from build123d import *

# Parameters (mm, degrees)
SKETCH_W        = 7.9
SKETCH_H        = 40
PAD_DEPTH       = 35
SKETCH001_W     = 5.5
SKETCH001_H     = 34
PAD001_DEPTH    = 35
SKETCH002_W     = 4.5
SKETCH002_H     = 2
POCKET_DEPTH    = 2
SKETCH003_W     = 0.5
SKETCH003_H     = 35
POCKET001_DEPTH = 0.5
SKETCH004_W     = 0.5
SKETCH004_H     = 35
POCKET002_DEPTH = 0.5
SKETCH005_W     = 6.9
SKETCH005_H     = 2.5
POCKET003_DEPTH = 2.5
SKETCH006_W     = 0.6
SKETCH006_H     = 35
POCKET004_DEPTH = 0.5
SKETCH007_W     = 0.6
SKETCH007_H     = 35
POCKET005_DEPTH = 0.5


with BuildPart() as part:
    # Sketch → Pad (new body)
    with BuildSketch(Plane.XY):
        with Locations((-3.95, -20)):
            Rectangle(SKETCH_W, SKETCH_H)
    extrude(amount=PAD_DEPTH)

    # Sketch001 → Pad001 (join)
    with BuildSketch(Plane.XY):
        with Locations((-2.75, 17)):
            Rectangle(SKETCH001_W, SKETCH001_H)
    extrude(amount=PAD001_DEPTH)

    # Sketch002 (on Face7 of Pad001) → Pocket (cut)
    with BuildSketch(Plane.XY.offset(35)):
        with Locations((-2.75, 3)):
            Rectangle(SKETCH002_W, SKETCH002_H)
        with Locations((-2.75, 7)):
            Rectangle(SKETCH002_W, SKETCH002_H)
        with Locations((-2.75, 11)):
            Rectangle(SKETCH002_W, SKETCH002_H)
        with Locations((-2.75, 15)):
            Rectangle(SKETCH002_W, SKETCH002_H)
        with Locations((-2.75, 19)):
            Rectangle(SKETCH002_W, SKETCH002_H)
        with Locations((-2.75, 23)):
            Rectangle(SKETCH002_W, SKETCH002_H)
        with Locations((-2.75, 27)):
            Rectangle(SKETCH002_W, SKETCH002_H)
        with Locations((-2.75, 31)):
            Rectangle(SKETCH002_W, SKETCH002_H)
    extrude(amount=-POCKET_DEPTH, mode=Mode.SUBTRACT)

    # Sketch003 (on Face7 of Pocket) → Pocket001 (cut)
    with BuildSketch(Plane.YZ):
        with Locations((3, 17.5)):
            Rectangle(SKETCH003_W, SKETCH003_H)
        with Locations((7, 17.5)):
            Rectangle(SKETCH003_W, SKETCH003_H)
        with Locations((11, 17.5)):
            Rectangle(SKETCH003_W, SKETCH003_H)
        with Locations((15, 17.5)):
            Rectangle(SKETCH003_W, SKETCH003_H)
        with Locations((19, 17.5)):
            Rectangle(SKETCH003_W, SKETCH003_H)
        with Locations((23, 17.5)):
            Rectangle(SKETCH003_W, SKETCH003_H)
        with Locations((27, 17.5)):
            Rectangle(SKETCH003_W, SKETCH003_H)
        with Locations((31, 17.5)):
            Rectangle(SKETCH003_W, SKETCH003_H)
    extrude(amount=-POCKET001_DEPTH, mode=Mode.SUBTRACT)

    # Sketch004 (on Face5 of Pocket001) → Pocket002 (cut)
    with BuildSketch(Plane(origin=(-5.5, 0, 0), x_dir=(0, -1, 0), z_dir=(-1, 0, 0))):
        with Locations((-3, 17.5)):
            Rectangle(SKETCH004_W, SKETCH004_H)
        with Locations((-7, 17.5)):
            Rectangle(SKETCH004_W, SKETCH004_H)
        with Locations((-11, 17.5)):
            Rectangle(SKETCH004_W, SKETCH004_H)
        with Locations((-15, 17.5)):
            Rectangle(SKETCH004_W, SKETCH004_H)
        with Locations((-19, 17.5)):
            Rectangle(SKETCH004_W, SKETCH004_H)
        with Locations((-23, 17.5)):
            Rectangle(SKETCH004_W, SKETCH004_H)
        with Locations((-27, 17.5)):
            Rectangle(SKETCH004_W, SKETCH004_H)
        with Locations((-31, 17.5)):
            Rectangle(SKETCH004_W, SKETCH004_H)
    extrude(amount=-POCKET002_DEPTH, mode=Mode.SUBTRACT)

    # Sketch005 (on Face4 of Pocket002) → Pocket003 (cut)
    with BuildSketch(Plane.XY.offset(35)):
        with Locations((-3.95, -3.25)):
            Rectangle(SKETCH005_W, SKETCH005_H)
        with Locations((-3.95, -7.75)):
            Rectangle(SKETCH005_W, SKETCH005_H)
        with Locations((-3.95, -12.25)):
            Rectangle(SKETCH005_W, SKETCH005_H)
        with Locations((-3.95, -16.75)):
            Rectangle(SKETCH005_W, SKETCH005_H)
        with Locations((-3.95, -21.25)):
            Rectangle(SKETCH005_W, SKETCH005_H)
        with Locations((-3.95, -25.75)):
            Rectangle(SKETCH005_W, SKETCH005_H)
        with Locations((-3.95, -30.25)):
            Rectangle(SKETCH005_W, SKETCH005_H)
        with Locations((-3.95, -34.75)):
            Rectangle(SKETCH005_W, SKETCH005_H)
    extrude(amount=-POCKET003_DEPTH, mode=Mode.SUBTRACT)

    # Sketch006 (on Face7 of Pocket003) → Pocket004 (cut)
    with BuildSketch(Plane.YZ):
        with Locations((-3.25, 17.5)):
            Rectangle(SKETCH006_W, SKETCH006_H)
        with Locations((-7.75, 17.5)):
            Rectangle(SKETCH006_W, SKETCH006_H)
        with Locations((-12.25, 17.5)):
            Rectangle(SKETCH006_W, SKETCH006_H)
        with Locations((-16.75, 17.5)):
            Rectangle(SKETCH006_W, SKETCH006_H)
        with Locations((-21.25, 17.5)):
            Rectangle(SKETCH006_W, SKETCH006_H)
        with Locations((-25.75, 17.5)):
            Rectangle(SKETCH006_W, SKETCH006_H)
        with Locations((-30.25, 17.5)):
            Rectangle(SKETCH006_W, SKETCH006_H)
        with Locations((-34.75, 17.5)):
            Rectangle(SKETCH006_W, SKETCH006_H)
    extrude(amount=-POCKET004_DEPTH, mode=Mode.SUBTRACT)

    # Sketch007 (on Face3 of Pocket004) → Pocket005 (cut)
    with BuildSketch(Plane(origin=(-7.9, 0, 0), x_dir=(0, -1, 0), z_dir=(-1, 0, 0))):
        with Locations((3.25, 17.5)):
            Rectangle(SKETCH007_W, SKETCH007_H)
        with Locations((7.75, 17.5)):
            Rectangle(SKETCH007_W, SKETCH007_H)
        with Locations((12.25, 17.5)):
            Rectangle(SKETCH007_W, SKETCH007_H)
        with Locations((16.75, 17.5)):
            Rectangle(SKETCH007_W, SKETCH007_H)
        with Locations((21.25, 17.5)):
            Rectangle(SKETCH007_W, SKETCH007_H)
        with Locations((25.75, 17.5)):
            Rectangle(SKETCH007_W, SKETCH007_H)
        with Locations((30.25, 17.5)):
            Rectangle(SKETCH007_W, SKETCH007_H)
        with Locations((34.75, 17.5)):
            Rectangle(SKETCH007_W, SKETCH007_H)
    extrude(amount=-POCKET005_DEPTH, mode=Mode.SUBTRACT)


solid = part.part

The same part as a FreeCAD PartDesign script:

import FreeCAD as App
import Part
import Sketcher
from FreeCAD import Vector


def add_polygon(sketch, points):
    """Adds a closed chain of lines whose ends are joined by coincident constraints."""
    first, n = sketch.GeometryCount, len(points)
    for a, b in zip(points, points[1:] + points[:1]):
        sketch.addGeometry(Part.LineSegment(App.Vector(*a, 0), App.Vector(*b, 0)), False)
    for i in range(n):
        sketch.addConstraint(Sketcher.Constraint("Coincident", first + i, 2, first + (i + 1) % n, 1))

doc = App.newDocument("Part")
body = doc.addObject("PartDesign::Body", "Body")

# Sketch on XY plane
sketch1 = body.newObject("Sketcher::SketchObject", "Sketch")
sketch1.AttachmentSupport = (doc.getObject("XY_Plane"), [""])
sketch1.MapMode = "FlatFace"
add_polygon(sketch1, [(-8, 0), (-8, -40), (0, -40), (0, 0)])  # lines 0-3
sketch1.addConstraint([
    Sketcher.Constraint("Vertical", 0),
    Sketcher.Constraint("Horizontal", 1),
    Sketcher.Constraint("Vertical", 2),
    Sketcher.Constraint("Horizontal", 3),
    Sketcher.Constraint("Coincident", 2, 2, -1, 1),
    Sketcher.Constraint("DistanceY", 0, 2, 0, 1, 40.0),
    Sketcher.Constraint("DistanceX", 1, 1, 1, 2, 7.9),
])
pad1 = body.newObject("PartDesign::Pad", "Pad")
pad1.Profile = sketch1
pad1.Length = 35

# Sketch on XY plane
sketch2 = body.newObject("Sketcher::SketchObject", "Sketch001")
sketch2.AttachmentSupport = (doc.getObject("XY_Plane"), [""])
sketch2.MapMode = "FlatFace"
add_polygon(sketch2, [(-6, 34), (-6, 0), (0, 0), (0, 34)])  # lines 0-3
sketch2.addConstraint([
    Sketcher.Constraint("Vertical", 0),
    Sketcher.Constraint("Horizontal", 1),
    Sketcher.Constraint("Vertical", 2),
    Sketcher.Constraint("Horizontal", 3),
    Sketcher.Constraint("Coincident", 1, 2, -1, 1),
    Sketcher.Constraint("DistanceY", 0, 2, 0, 1, 34.0),
    Sketcher.Constraint("DistanceX", 1, 1, 1, 2, 5.5),
])
pad2 = body.newObject("PartDesign::Pad", "Pad001")
pad2.Profile = sketch2
pad2.Length = 35

# Sketch on XY plane
sketch3 = body.newObject("Sketcher::SketchObject", "Sketch002")
sketch3.AttachmentSupport = (doc.getObject("XY_Plane"), [""])
sketch3.MapMode = "FlatFace"
sketch3.AttachmentOffset = App.Placement(Vector(0, 0, 35), App.Rotation())
add_polygon(sketch3, [(-5, 4), (-5, 2), (-0.5, 2), (-0.5, 4)])  # lines 0-3
add_polygon(sketch3, [(-5, 8), (-5, 6), (-0.5, 6), (-0.5, 8)])  # lines 4-7
add_polygon(sketch3, [(-5, 12), (-5, 10), (-0.5, 10), (-0.5, 12)])  # lines 8-11
add_polygon(sketch3, [(-5, 16), (-5, 14), (-0.5, 14), (-0.5, 16)])  # lines 12-15
add_polygon(sketch3, [(-5, 20), (-5, 18), (-0.5, 18), (-0.5, 20)])  # lines 16-19
add_polygon(sketch3, [(-5, 24), (-5, 22), (-0.5, 22), (-0.5, 24)])  # lines 20-23
add_polygon(sketch3, [(-5, 28), (-5, 26), (-0.5, 26), (-0.5, 28)])  # lines 24-27
add_polygon(sketch3, [(-5, 32), (-5, 30), (-0.5, 30), (-0.5, 32)])  # lines 28-31
sketch3.addConstraint([
    Sketcher.Constraint("Vertical", 0),
    Sketcher.Constraint("Horizontal", 1),
    Sketcher.Constraint("Vertical", 2),
    Sketcher.Constraint("Horizontal", 3),
    Sketcher.Constraint("Vertical", 4),
    Sketcher.Constraint("Horizontal", 5),
    Sketcher.Constraint("Vertical", 6),
    Sketcher.Constraint("Horizontal", 7),
    Sketcher.Constraint("Vertical", 8),
    Sketcher.Constraint("Horizontal", 9),
    Sketcher.Constraint("Vertical", 10),
    Sketcher.Constraint("Horizontal", 11),
    Sketcher.Constraint("Vertical", 12),
    Sketcher.Constraint("Horizontal", 13),
    Sketcher.Constraint("Vertical", 14),
    Sketcher.Constraint("Horizontal", 15),
    Sketcher.Constraint("Vertical", 16),
    Sketcher.Constraint("Horizontal", 17),
    Sketcher.Constraint("Vertical", 18),
    Sketcher.Constraint("Horizontal", 19),
    Sketcher.Constraint("Vertical", 20),
    Sketcher.Constraint("Horizontal", 21),
    Sketcher.Constraint("Vertical", 22),
    Sketcher.Constraint("Horizontal", 23),
    Sketcher.Constraint("Vertical", 24),
    Sketcher.Constraint("Horizontal", 25),
    Sketcher.Constraint("Vertical", 26),
    Sketcher.Constraint("Horizontal", 27),
    Sketcher.Constraint("Vertical", 28),
    Sketcher.Constraint("Horizontal", 29),
    Sketcher.Constraint("Vertical", 30),
    Sketcher.Constraint("Horizontal", 31),
    Sketcher.Constraint("Vertical", 3, 2, 4, 2),
    Sketcher.Constraint("Vertical", 2, 2, 5, 2),
    Sketcher.Constraint("Vertical", 7, 2, 8, 2),
    Sketcher.Constraint("Vertical", 6, 2, 9, 2),
    Sketcher.Constraint("Vertical", 11, 2, 12, 2),
    Sketcher.Constraint("Vertical", 10, 2, 13, 2),
    Sketcher.Constraint("Vertical", 15, 2, 16, 2),
    Sketcher.Constraint("Vertical", 14, 2, 17, 2),
    Sketcher.Constraint("Vertical", 19, 2, 20, 2),
    Sketcher.Constraint("Vertical", 18, 2, 21, 2),
    Sketcher.Constraint("Vertical", 23, 2, 24, 2),
    Sketcher.Constraint("Vertical", 22, 2, 25, 2),
    Sketcher.Constraint("Vertical", 27, 2, 28, 2),
    Sketcher.Constraint("Vertical", 26, 2, 29, 2),
    Sketcher.Constraint("Equal", 2, 4),
    Sketcher.Constraint("Equal", 6, 8),
    Sketcher.Constraint("Equal", 10, 12),
    Sketcher.Constraint("Equal", 14, 16),
    Sketcher.Constraint("Equal", 18, 20),
    Sketcher.Constraint("Equal", 22, 24),
    Sketcher.Constraint("Equal", 26, 28),
    Sketcher.Constraint("DistanceY", 0, 2, 0, 1, 2.0),
    Sketcher.Constraint("DistanceX", 1, 1, 1, 2, 4.5),
    Sketcher.Constraint("DistanceX", 0, 2, -1, 1, 5.0),
    Sketcher.Constraint("DistanceY", -1, 1, 0, 2, 2.0),
    Sketcher.Constraint("DistanceY", -1, 1, 4, 2, 6.0),
    Sketcher.Constraint("DistanceY", -1, 1, 8, 2, 10.0),
    Sketcher.Constraint("DistanceY", -1, 1, 12, 2, 14.0),
    Sketcher.Constraint("DistanceY", -1, 1, 16, 2, 18.0),
    Sketcher.Constraint("DistanceY", -1, 1, 20, 2, 22.0),
    Sketcher.Constraint("DistanceY", -1, 1, 24, 2, 26.0),
    Sketcher.Constraint("DistanceY", -1, 1, 28, 2, 30.0),
])
pocket1 = body.newObject("PartDesign::Pocket", "Pocket")
pocket1.Profile = sketch3
pocket1.Length = 2

# Sketch on YZ plane
sketch4 = body.newObject("Sketcher::SketchObject", "Sketch003")
sketch4.AttachmentSupport = (doc.getObject("YZ_Plane"), [""])
sketch4.MapMode = "FlatFace"
add_polygon(sketch4, [(2.8, 35), (2.8, 0), (3.2, 0), (3.2, 35)])  # lines 0-3
add_polygon(sketch4, [(6.8, 35), (6.8, 0), (7.2, 0), (7.2, 35)])  # lines 4-7
add_polygon(sketch4, [(10.8, 35), (10.8, 0), (11.2, 0), (11.2, 35)])  # lines 8-11
add_polygon(sketch4, [(14.8, 35), (14.8, 0), (15.2, 0), (15.2, 35)])  # lines 12-15
add_polygon(sketch4, [(18.8, 35), (18.8, 0), (19.2, 0), (19.2, 35)])  # lines 16-19
add_polygon(sketch4, [(22.8, 35), (22.8, 0), (23.2, 0), (23.2, 35)])  # lines 20-23
add_polygon(sketch4, [(26.8, 35), (26.8, 0), (27.2, 0), (27.2, 35)])  # lines 24-27
add_polygon(sketch4, [(30.8, 35), (30.8, 0), (31.2, 0), (31.2, 35)])  # lines 28-31
sketch4.addConstraint([
    Sketcher.Constraint("Vertical", 0),
    Sketcher.Constraint("Horizontal", 1),
    Sketcher.Constraint("Vertical", 2),
    Sketcher.Constraint("Horizontal", 3),
    Sketcher.Constraint("Vertical", 4),
    Sketcher.Constraint("Horizontal", 5),
    Sketcher.Constraint("Vertical", 6),
    Sketcher.Constraint("Horizontal", 7),
    Sketcher.Constraint("Vertical", 8),
    Sketcher.Constraint("Horizontal", 9),
    Sketcher.Constraint("Vertical", 10),
    Sketcher.Constraint("Horizontal", 11),
    Sketcher.Constraint("Vertical", 12),
    Sketcher.Constraint("Horizontal", 13),
    Sketcher.Constraint("Vertical", 14),
    Sketcher.Constraint("Horizontal", 15),
    Sketcher.Constraint("Vertical", 16),
    Sketcher.Constraint("Horizontal", 17),
    Sketcher.Constraint("Vertical", 18),
    Sketcher.Constraint("Horizontal", 19),
    Sketcher.Constraint("Vertical", 20),
    Sketcher.Constraint("Horizontal", 21),
    Sketcher.Constraint("Vertical", 22),
    Sketcher.Constraint("Horizontal", 23),
    Sketcher.Constraint("Vertical", 24),
    Sketcher.Constraint("Horizontal", 25),
    Sketcher.Constraint("Vertical", 26),
    Sketcher.Constraint("Horizontal", 27),
    Sketcher.Constraint("Vertical", 28),
    Sketcher.Constraint("Horizontal", 29),
    Sketcher.Constraint("Vertical", 30),
    Sketcher.Constraint("Horizontal", 31),
    Sketcher.Constraint("PointOnObject", 0, 2, -1),
    Sketcher.Constraint("PointOnObject", 4, 2, -1),
    Sketcher.Constraint("PointOnObject", 8, 2, -1),
    Sketcher.Constraint("PointOnObject", 12, 2, -1),
    Sketcher.Constraint("PointOnObject", 16, 2, -1),
    Sketcher.Constraint("PointOnObject", 20, 2, -1),
    Sketcher.Constraint("PointOnObject", 24, 2, -1),
    Sketcher.Constraint("PointOnObject", 28, 2, -1),
    Sketcher.Constraint("Horizontal", 3, 2, 6, 2),
    Sketcher.Constraint("Horizontal", 7, 2, 10, 2),
    Sketcher.Constraint("Horizontal", 11, 2, 14, 2),
    Sketcher.Constraint("Horizontal", 15, 2, 18, 2),
    Sketcher.Constraint("Horizontal", 19, 2, 22, 2),
    Sketcher.Constraint("Horizontal", 23, 2, 26, 2),
    Sketcher.Constraint("Horizontal", 27, 2, 30, 2),
    Sketcher.Constraint("Equal", 3, 5),
    Sketcher.Constraint("Equal", 7, 9),
    Sketcher.Constraint("Equal", 11, 13),
    Sketcher.Constraint("Equal", 15, 17),
    Sketcher.Constraint("Equal", 19, 21),
    Sketcher.Constraint("Equal", 23, 25),
    Sketcher.Constraint("Equal", 27, 29),
    Sketcher.Constraint("DistanceY", 0, 2, 0, 1, 35.0),
    Sketcher.Constraint("DistanceX", 1, 1, 1, 2, 0.5),
    Sketcher.Constraint("DistanceX", 0, 2, 4, 2, 4.0),
    Sketcher.Constraint("DistanceX", 4, 2, 8, 2, 4.0),
    Sketcher.Constraint("DistanceX", 8, 2, 12, 2, 4.0),
    Sketcher.Constraint("DistanceX", 12, 2, 16, 2, 4.0),
    Sketcher.Constraint("DistanceX", 16, 2, 20, 2, 4.0),
    Sketcher.Constraint("DistanceX", 20, 2, 24, 2, 4.0),
    Sketcher.Constraint("DistanceX", 24, 2, 28, 2, 4.0),
    Sketcher.Constraint("DistanceX", -1, 1, 0, 2, 2.75),
])
pocket2 = body.newObject("PartDesign::Pocket", "Pocket001")
pocket2.Profile = sketch4
pocket2.Length = 0.5

# Sketch on YZ plane
sketch5 = body.newObject("Sketcher::SketchObject", "Sketch004")
sketch5.AttachmentSupport = (doc.getObject("YZ_Plane"), [""])
sketch5.MapMode = "FlatFace"
sketch5.AttachmentOffset = App.Placement(Vector(0, 0, -5.5), App.Rotation())
add_polygon(sketch5, [(3.2, 35), (3.2, 0), (2.8, 0), (2.8, 35)])  # lines 0-3
add_polygon(sketch5, [(7.2, 35), (7.2, 0), (6.8, 0), (6.8, 35)])  # lines 4-7
add_polygon(sketch5, [(11.2, 35), (11.2, 0), (10.8, 0), (10.8, 35)])  # lines 8-11
add_polygon(sketch5, [(15.2, 35), (15.2, 0), (14.8, 0), (14.8, 35)])  # lines 12-15
add_polygon(sketch5, [(19.2, 35), (19.2, 0), (18.8, 0), (18.8, 35)])  # lines 16-19
add_polygon(sketch5, [(23.2, 35), (23.2, 0), (22.8, 0), (22.8, 35)])  # lines 20-23
add_polygon(sketch5, [(27.2, 35), (27.2, 0), (26.8, 0), (26.8, 35)])  # lines 24-27
add_polygon(sketch5, [(31.2, 35), (31.2, 0), (30.8, 0), (30.8, 35)])  # lines 28-31
sketch5.addConstraint([
    Sketcher.Constraint("Vertical", 0),
    Sketcher.Constraint("Horizontal", 1),
    Sketcher.Constraint("Vertical", 2),
    Sketcher.Constraint("Horizontal", 3),
    Sketcher.Constraint("Vertical", 4),
    Sketcher.Constraint("Horizontal", 5),
    Sketcher.Constraint("Vertical", 6),
    Sketcher.Constraint("Horizontal", 7),
    Sketcher.Constraint("Vertical", 8),
    Sketcher.Constraint("Horizontal", 9),
    Sketcher.Constraint("Vertical", 10),
    Sketcher.Constraint("Horizontal", 11),
    Sketcher.Constraint("Vertical", 12),
    Sketcher.Constraint("Horizontal", 13),
    Sketcher.Constraint("Vertical", 14),
    Sketcher.Constraint("Horizontal", 15),
    Sketcher.Constraint("Vertical", 16),
    Sketcher.Constraint("Horizontal", 17),
    Sketcher.Constraint("Vertical", 18),
    Sketcher.Constraint("Horizontal", 19),
    Sketcher.Constraint("Vertical", 20),
    Sketcher.Constraint("Horizontal", 21),
    Sketcher.Constraint("Vertical", 22),
    Sketcher.Constraint("Horizontal", 23),
    Sketcher.Constraint("Vertical", 24),
    Sketcher.Constraint("Horizontal", 25),
    Sketcher.Constraint("Vertical", 26),
    Sketcher.Constraint("Horizontal", 27),
    Sketcher.Constraint("Vertical", 28),
    Sketcher.Constraint("Horizontal", 29),
    Sketcher.Constraint("Vertical", 30),
    Sketcher.Constraint("Horizontal", 31),
    Sketcher.Constraint("PointOnObject", 0, 2, -1),
    Sketcher.Constraint("PointOnObject", 4, 2, -1),
    Sketcher.Constraint("PointOnObject", 8, 2, -1),
    Sketcher.Constraint("PointOnObject", 12, 2, -1),
    Sketcher.Constraint("PointOnObject", 16, 2, -1),
    Sketcher.Constraint("PointOnObject", 20, 2, -1),
    Sketcher.Constraint("PointOnObject", 24, 2, -1),
    Sketcher.Constraint("PointOnObject", 28, 2, -1),
    Sketcher.Constraint("Horizontal", 3, 2, 6, 2),
    Sketcher.Constraint("Horizontal", 7, 2, 10, 2),
    Sketcher.Constraint("Horizontal", 11, 2, 14, 2),
    Sketcher.Constraint("Horizontal", 15, 2, 18, 2),
    Sketcher.Constraint("Horizontal", 19, 2, 22, 2),
    Sketcher.Constraint("Horizontal", 23, 2, 26, 2),
    Sketcher.Constraint("Horizontal", 27, 2, 30, 2),
    Sketcher.Constraint("Equal", 3, 5),
    Sketcher.Constraint("Equal", 7, 9),
    Sketcher.Constraint("Equal", 11, 13),
    Sketcher.Constraint("Equal", 15, 17),
    Sketcher.Constraint("Equal", 19, 21),
    Sketcher.Constraint("Equal", 23, 25),
    Sketcher.Constraint("Equal", 27, 29),
    Sketcher.Constraint("DistanceY", 0, 2, 0, 1, 35.0),
    Sketcher.Constraint("DistanceX", 1, 2, 1, 1, 0.5),
    Sketcher.Constraint("DistanceX", 0, 2, 4, 2, 4.0),
    Sketcher.Constraint("DistanceX", 4, 2, 8, 2, 4.0),
    Sketcher.Constraint("DistanceX", 8, 2, 12, 2, 4.0),
    Sketcher.Constraint("DistanceX", 12, 2, 16, 2, 4.0),
    Sketcher.Constraint("DistanceX", 16, 2, 20, 2, 4.0),
    Sketcher.Constraint("DistanceX", 20, 2, 24, 2, 4.0),
    Sketcher.Constraint("DistanceX", 24, 2, 28, 2, 4.0),
    Sketcher.Constraint("DistanceX", -1, 1, 0, 2, 3.25),
])
pocket3 = body.newObject("PartDesign::Pocket", "Pocket002")
pocket3.Profile = sketch5
pocket3.Length = 0.5
pocket3.Reversed = True

# Sketch on XY plane
sketch6 = body.newObject("Sketcher::SketchObject", "Sketch005")
sketch6.AttachmentSupport = (doc.getObject("XY_Plane"), [""])
sketch6.MapMode = "FlatFace"
sketch6.AttachmentOffset = App.Placement(Vector(0, 0, 35), App.Rotation())
add_polygon(sketch6, [(-7.4, -2), (-7.4, -4.5), (-0.5, -4.5), (-0.5, -2)])  # lines 0-3
add_polygon(sketch6, [(-7.4, -6.5), (-7.4, -9), (-0.5, -9), (-0.5, -6.5)])  # lines 4-7
add_polygon(sketch6, [(-7.4, -11), (-7.4, -13.5), (-0.5, -13.5), (-0.5, -11)])  # lines 8-11
add_polygon(sketch6, [(-7.4, -15.5), (-7.4, -18), (-0.5, -18), (-0.5, -15.5)])  # lines 12-15
add_polygon(sketch6, [(-7.4, -20), (-7.4, -22.5), (-0.5, -22.5), (-0.5, -20)])  # lines 16-19
add_polygon(sketch6, [(-7.4, -24.5), (-7.4, -27), (-0.5, -27), (-0.5, -24.5)])  # lines 20-23
add_polygon(sketch6, [(-7.4, -29), (-7.4, -31.5), (-0.5, -31.5), (-0.5, -29)])  # lines 24-27
add_polygon(sketch6, [(-7.4, -33.5), (-7.4, -36), (-0.5, -36), (-0.5, -33.5)])  # lines 28-31
sketch6.addConstraint([
    Sketcher.Constraint("Vertical", 0),
    Sketcher.Constraint("Horizontal", 1),
    Sketcher.Constraint("Vertical", 2),
    Sketcher.Constraint("Horizontal", 3),
    Sketcher.Constraint("Vertical", 4),
    Sketcher.Constraint("Horizontal", 5),
    Sketcher.Constraint("Vertical", 6),
    Sketcher.Constraint("Horizontal", 7),
    Sketcher.Constraint("Vertical", 8),
    Sketcher.Constraint("Horizontal", 9),
    Sketcher.Constraint("Vertical", 10),
    Sketcher.Constraint("Horizontal", 11),
    Sketcher.Constraint("Vertical", 12),
    Sketcher.Constraint("Horizontal", 13),
    Sketcher.Constraint("Vertical", 14),
    Sketcher.Constraint("Horizontal", 15),
    Sketcher.Constraint("Vertical", 16),
    Sketcher.Constraint("Horizontal", 17),
    Sketcher.Constraint("Vertical", 18),
    Sketcher.Constraint("Horizontal", 19),
    Sketcher.Constraint("Vertical", 20),
    Sketcher.Constraint("Horizontal", 21),
    Sketcher.Constraint("Vertical", 22),
    Sketcher.Constraint("Horizontal", 23),
    Sketcher.Constraint("Vertical", 24),
    Sketcher.Constraint("Horizontal", 25),
    Sketcher.Constraint("Vertical", 26),
    Sketcher.Constraint("Horizontal", 27),
    Sketcher.Constraint("Vertical", 28),
    Sketcher.Constraint("Horizontal", 29),
    Sketcher.Constraint("Vertical", 30),
    Sketcher.Constraint("Horizontal", 31),
    Sketcher.Constraint("Vertical", 3, 2, 4, 2),
    Sketcher.Constraint("Vertical", 2, 2, 5, 2),
    Sketcher.Constraint("Vertical", 7, 2, 8, 2),
    Sketcher.Constraint("Vertical", 6, 2, 9, 2),
    Sketcher.Constraint("Vertical", 11, 2, 12, 2),
    Sketcher.Constraint("Vertical", 10, 2, 13, 2),
    Sketcher.Constraint("Vertical", 15, 2, 16, 2),
    Sketcher.Constraint("Vertical", 14, 2, 17, 2),
    Sketcher.Constraint("Vertical", 19, 2, 20, 2),
    Sketcher.Constraint("Vertical", 18, 2, 21, 2),
    Sketcher.Constraint("Vertical", 23, 2, 24, 2),
    Sketcher.Constraint("Vertical", 22, 2, 25, 2),
    Sketcher.Constraint("Vertical", 27, 2, 28, 2),
    Sketcher.Constraint("Vertical", 26, 2, 29, 2),
    Sketcher.Constraint("Equal", 2, 4),
    Sketcher.Constraint("Equal", 6, 8),
    Sketcher.Constraint("Equal", 10, 12),
    Sketcher.Constraint("Equal", 14, 16),
    Sketcher.Constraint("Equal", 18, 20),
    Sketcher.Constraint("Equal", 22, 24),
    Sketcher.Constraint("Equal", 26, 28),
    Sketcher.Constraint("DistanceX", 1, 1, 1, 2, 6.9),
    Sketcher.Constraint("DistanceY", 0, 2, 0, 1, 2.5),
    Sketcher.Constraint("DistanceY", 2, 2, -1, 1, 2.0),
    Sketcher.Constraint("DistanceY", 4, 2, -1, 1, 9.0),
    Sketcher.Constraint("DistanceY", 10, 2, -1, 1, 11.0),
    Sketcher.Constraint("DistanceY", 12, 2, -1, 1, 18.0),
    Sketcher.Constraint("DistanceY", 18, 2, -1, 1, 20.0),
    Sketcher.Constraint("DistanceY", 20, 2, -1, 1, 27.0),
    Sketcher.Constraint("DistanceY", 26, 2, -1, 1, 29.0),
    Sketcher.Constraint("DistanceY", 28, 2, -1, 1, 36.0),
    Sketcher.Constraint("DistanceX", 0, 2, -1, 1, 7.4),
])
pocket4 = body.newObject("PartDesign::Pocket", "Pocket003")
pocket4.Profile = sketch6
pocket4.Length = 2.5

# Sketch on YZ plane
sketch7 = body.newObject("Sketcher::SketchObject", "Sketch006")
sketch7.AttachmentSupport = (doc.getObject("YZ_Plane"), [""])
sketch7.MapMode = "FlatFace"
add_polygon(sketch7, [(-3.5, 35), (-3.5, 0), (-3, 0), (-3, 35)])  # lines 0-3
add_polygon(sketch7, [(-8.1, 35), (-8.1, 0), (-7.5, 0), (-7.5, 35)])  # lines 4-7
add_polygon(sketch7, [(-12.6, 35), (-12.6, 0), (-11.9, 0), (-11.9, 35)])  # lines 8-11
add_polygon(sketch7, [(-17.1, 35), (-17.1, 0), (-16.4, 0), (-16.4, 35)])  # lines 12-15
add_polygon(sketch7, [(-21.6, 35), (-21.6, 0), (-20.9, 0), (-20.9, 35)])  # lines 16-19
add_polygon(sketch7, [(-26.1, 35), (-26.1, 0), (-25.4, 0), (-25.4, 35)])  # lines 20-23
add_polygon(sketch7, [(-30.6, 35), (-30.6, 0), (-29.9, 0), (-29.9, 35)])  # lines 24-27
add_polygon(sketch7, [(-35, 35), (-35, 0), (-34.5, 0), (-34.5, 35)])  # lines 28-31
sketch7.addConstraint([
    Sketcher.Constraint("Vertical", 0),
    Sketcher.Constraint("Horizontal", 1),
    Sketcher.Constraint("Vertical", 2),
    Sketcher.Constraint("Horizontal", 3),
    Sketcher.Constraint("Vertical", 4),
    Sketcher.Constraint("Horizontal", 5),
    Sketcher.Constraint("Vertical", 6),
    Sketcher.Constraint("Horizontal", 7),
    Sketcher.Constraint("Vertical", 8),
    Sketcher.Constraint("Horizontal", 9),
    Sketcher.Constraint("Vertical", 10),
    Sketcher.Constraint("Horizontal", 11),
    Sketcher.Constraint("Vertical", 12),
    Sketcher.Constraint("Horizontal", 13),
    Sketcher.Constraint("Vertical", 14),
    Sketcher.Constraint("Horizontal", 15),
    Sketcher.Constraint("Vertical", 16),
    Sketcher.Constraint("Horizontal", 17),
    Sketcher.Constraint("Vertical", 18),
    Sketcher.Constraint("Horizontal", 19),
    Sketcher.Constraint("Vertical", 20),
    Sketcher.Constraint("Horizontal", 21),
    Sketcher.Constraint("Vertical", 22),
    Sketcher.Constraint("Horizontal", 23),
    Sketcher.Constraint("Vertical", 24),
    Sketcher.Constraint("Horizontal", 25),
    Sketcher.Constraint("Vertical", 26),
    Sketcher.Constraint("Horizontal", 27),
    Sketcher.Constraint("Vertical", 28),
    Sketcher.Constraint("Horizontal", 29),
    Sketcher.Constraint("Vertical", 30),
    Sketcher.Constraint("Horizontal", 31),
    Sketcher.Constraint("PointOnObject", 0, 2, -1),
    Sketcher.Constraint("PointOnObject", 4, 2, -1),
    Sketcher.Constraint("PointOnObject", 8, 2, -1),
    Sketcher.Constraint("PointOnObject", 12, 2, -1),
    Sketcher.Constraint("PointOnObject", 16, 2, -1),
    Sketcher.Constraint("PointOnObject", 20, 2, -1),
    Sketcher.Constraint("PointOnObject", 24, 2, -1),
    Sketcher.Constraint("PointOnObject", 28, 2, -1),
    Sketcher.Constraint("Horizontal", 3, 2, 6, 2),
    Sketcher.Constraint("Horizontal", 7, 2, 10, 2),
    Sketcher.Constraint("Horizontal", 11, 2, 14, 2),
    Sketcher.Constraint("Horizontal", 15, 2, 18, 2),
    Sketcher.Constraint("Horizontal", 19, 2, 22, 2),
    Sketcher.Constraint("Horizontal", 23, 2, 26, 2),
    Sketcher.Constraint("Horizontal", 27, 2, 30, 2),
    Sketcher.Constraint("Equal", 3, 5),
    Sketcher.Constraint("Equal", 7, 9),
    Sketcher.Constraint("Equal", 11, 13),
    Sketcher.Constraint("Equal", 15, 17),
    Sketcher.Constraint("Equal", 19, 21),
    Sketcher.Constraint("Equal", 23, 25),
    Sketcher.Constraint("Equal", 27, 29),
    Sketcher.Constraint("DistanceY", 0, 2, 0, 1, 35.0),
    Sketcher.Constraint("DistanceX", 1, 1, 1, 2, 0.6),
    Sketcher.Constraint("DistanceX", 8, 2, 0, 2, 9.0),
    Sketcher.Constraint("DistanceX", 12, 2, 4, 2, 9.0),
    Sketcher.Constraint("DistanceX", 16, 2, 8, 2, 9.0),
    Sketcher.Constraint("DistanceX", 20, 2, 12, 2, 9.0),
    Sketcher.Constraint("DistanceX", 24, 2, 16, 2, 9.0),
    Sketcher.Constraint("DistanceX", 28, 2, 20, 2, 9.0),
    Sketcher.Constraint("DistanceX", 4, 2, 0, 2, 4.5),
    Sketcher.Constraint("DistanceX", 0, 2, -1, 1, 3.55),
])
pocket5 = body.newObject("PartDesign::Pocket", "Pocket004")
pocket5.Profile = sketch7
pocket5.Length = 0.5

# Sketch on YZ plane
sketch8 = body.newObject("Sketcher::SketchObject", "Sketch007")
sketch8.AttachmentSupport = (doc.getObject("YZ_Plane"), [""])
sketch8.MapMode = "FlatFace"
sketch8.AttachmentOffset = App.Placement(Vector(0, 0, -7.9), App.Rotation())
add_polygon(sketch8, [(-3, 35), (-3, 0), (-3.5, 0), (-3.5, 35)])  # lines 0-3
add_polygon(sketch8, [(-7.5, 35), (-7.5, 0), (-8.1, 0), (-8.1, 35)])  # lines 4-7
add_polygon(sketch8, [(-11.9, 35), (-11.9, 0), (-12.6, 0), (-12.6, 35)])  # lines 8-11
add_polygon(sketch8, [(-16.4, 35), (-16.4, 0), (-17.1, 0), (-17.1, 35)])  # lines 12-15
add_polygon(sketch8, [(-20.9, 35), (-20.9, 0), (-21.6, 0), (-21.6, 35)])  # lines 16-19
add_polygon(sketch8, [(-25.4, 35), (-25.4, 0), (-26.1, 0), (-26.1, 35)])  # lines 20-23
add_polygon(sketch8, [(-29.9, 35), (-29.9, 0), (-30.6, 0), (-30.6, 35)])  # lines 24-27
add_polygon(sketch8, [(-34.5, 35), (-34.5, 0), (-35, 0), (-35, 35)])  # lines 28-31
sketch8.addConstraint([
    Sketcher.Constraint("Vertical", 0),
    Sketcher.Constraint("Horizontal", 1),
    Sketcher.Constraint("Vertical", 2),
    Sketcher.Constraint("Horizontal", 3),
    Sketcher.Constraint("Vertical", 4),
    Sketcher.Constraint("Horizontal", 5),
    Sketcher.Constraint("Vertical", 6),
    Sketcher.Constraint("Horizontal", 7),
    Sketcher.Constraint("Vertical", 8),
    Sketcher.Constraint("Horizontal", 9),
    Sketcher.Constraint("Vertical", 10),
    Sketcher.Constraint("Horizontal", 11),
    Sketcher.Constraint("Vertical", 12),
    Sketcher.Constraint("Horizontal", 13),
    Sketcher.Constraint("Vertical", 14),
    Sketcher.Constraint("Horizontal", 15),
    Sketcher.Constraint("Vertical", 16),
    Sketcher.Constraint("Horizontal", 17),
    Sketcher.Constraint("Vertical", 18),
    Sketcher.Constraint("Horizontal", 19),
    Sketcher.Constraint("Vertical", 20),
    Sketcher.Constraint("Horizontal", 21),
    Sketcher.Constraint("Vertical", 22),
    Sketcher.Constraint("Horizontal", 23),
    Sketcher.Constraint("Vertical", 24),
    Sketcher.Constraint("Horizontal", 25),
    Sketcher.Constraint("Vertical", 26),
    Sketcher.Constraint("Horizontal", 27),
    Sketcher.Constraint("Vertical", 28),
    Sketcher.Constraint("Horizontal", 29),
    Sketcher.Constraint("Vertical", 30),
    Sketcher.Constraint("Horizontal", 31),
    Sketcher.Constraint("PointOnObject", 0, 2, -1),
    Sketcher.Constraint("PointOnObject", 4, 2, -1),
    Sketcher.Constraint("PointOnObject", 8, 2, -1),
    Sketcher.Constraint("PointOnObject", 12, 2, -1),
    Sketcher.Constraint("PointOnObject", 16, 2, -1),
    Sketcher.Constraint("PointOnObject", 20, 2, -1),
    Sketcher.Constraint("PointOnObject", 24, 2, -1),
    Sketcher.Constraint("PointOnObject", 28, 2, -1),
    Sketcher.Constraint("Horizontal", 3, 2, 6, 2),
    Sketcher.Constraint("Horizontal", 7, 2, 10, 2),
    Sketcher.Constraint("Horizontal", 11, 2, 14, 2),
    Sketcher.Constraint("Horizontal", 15, 2, 18, 2),
    Sketcher.Constraint("Horizontal", 19, 2, 22, 2),
    Sketcher.Constraint("Horizontal", 23, 2, 26, 2),
    Sketcher.Constraint("Horizontal", 27, 2, 30, 2),
    Sketcher.Constraint("Equal", 3, 5),
    Sketcher.Constraint("Equal", 7, 9),
    Sketcher.Constraint("Equal", 11, 13),
    Sketcher.Constraint("Equal", 15, 17),
    Sketcher.Constraint("Equal", 19, 21),
    Sketcher.Constraint("Equal", 23, 25),
    Sketcher.Constraint("Equal", 27, 29),
    Sketcher.Constraint("DistanceY", 0, 2, 0, 1, 35.0),
    Sketcher.Constraint("DistanceX", 1, 2, 1, 1, 0.6),
    Sketcher.Constraint("DistanceX", 8, 2, 0, 2, 9.0),
    Sketcher.Constraint("DistanceX", 12, 2, 4, 2, 9.0),
    Sketcher.Constraint("DistanceX", 16, 2, 8, 2, 9.0),
    Sketcher.Constraint("DistanceX", 20, 2, 12, 2, 9.0),
    Sketcher.Constraint("DistanceX", 24, 2, 16, 2, 9.0),
    Sketcher.Constraint("DistanceX", 28, 2, 20, 2, 9.0),
    Sketcher.Constraint("DistanceX", 4, 2, 1, 2, 3.9),
    Sketcher.Constraint("DistanceX", 0, 2, -1, 1, 2.95),
])
pocket6 = body.newObject("PartDesign::Pocket", "Pocket005")
pocket6.Profile = sketch8
pocket6.Length = 0.5
pocket6.Reversed = True

doc.recompute()
